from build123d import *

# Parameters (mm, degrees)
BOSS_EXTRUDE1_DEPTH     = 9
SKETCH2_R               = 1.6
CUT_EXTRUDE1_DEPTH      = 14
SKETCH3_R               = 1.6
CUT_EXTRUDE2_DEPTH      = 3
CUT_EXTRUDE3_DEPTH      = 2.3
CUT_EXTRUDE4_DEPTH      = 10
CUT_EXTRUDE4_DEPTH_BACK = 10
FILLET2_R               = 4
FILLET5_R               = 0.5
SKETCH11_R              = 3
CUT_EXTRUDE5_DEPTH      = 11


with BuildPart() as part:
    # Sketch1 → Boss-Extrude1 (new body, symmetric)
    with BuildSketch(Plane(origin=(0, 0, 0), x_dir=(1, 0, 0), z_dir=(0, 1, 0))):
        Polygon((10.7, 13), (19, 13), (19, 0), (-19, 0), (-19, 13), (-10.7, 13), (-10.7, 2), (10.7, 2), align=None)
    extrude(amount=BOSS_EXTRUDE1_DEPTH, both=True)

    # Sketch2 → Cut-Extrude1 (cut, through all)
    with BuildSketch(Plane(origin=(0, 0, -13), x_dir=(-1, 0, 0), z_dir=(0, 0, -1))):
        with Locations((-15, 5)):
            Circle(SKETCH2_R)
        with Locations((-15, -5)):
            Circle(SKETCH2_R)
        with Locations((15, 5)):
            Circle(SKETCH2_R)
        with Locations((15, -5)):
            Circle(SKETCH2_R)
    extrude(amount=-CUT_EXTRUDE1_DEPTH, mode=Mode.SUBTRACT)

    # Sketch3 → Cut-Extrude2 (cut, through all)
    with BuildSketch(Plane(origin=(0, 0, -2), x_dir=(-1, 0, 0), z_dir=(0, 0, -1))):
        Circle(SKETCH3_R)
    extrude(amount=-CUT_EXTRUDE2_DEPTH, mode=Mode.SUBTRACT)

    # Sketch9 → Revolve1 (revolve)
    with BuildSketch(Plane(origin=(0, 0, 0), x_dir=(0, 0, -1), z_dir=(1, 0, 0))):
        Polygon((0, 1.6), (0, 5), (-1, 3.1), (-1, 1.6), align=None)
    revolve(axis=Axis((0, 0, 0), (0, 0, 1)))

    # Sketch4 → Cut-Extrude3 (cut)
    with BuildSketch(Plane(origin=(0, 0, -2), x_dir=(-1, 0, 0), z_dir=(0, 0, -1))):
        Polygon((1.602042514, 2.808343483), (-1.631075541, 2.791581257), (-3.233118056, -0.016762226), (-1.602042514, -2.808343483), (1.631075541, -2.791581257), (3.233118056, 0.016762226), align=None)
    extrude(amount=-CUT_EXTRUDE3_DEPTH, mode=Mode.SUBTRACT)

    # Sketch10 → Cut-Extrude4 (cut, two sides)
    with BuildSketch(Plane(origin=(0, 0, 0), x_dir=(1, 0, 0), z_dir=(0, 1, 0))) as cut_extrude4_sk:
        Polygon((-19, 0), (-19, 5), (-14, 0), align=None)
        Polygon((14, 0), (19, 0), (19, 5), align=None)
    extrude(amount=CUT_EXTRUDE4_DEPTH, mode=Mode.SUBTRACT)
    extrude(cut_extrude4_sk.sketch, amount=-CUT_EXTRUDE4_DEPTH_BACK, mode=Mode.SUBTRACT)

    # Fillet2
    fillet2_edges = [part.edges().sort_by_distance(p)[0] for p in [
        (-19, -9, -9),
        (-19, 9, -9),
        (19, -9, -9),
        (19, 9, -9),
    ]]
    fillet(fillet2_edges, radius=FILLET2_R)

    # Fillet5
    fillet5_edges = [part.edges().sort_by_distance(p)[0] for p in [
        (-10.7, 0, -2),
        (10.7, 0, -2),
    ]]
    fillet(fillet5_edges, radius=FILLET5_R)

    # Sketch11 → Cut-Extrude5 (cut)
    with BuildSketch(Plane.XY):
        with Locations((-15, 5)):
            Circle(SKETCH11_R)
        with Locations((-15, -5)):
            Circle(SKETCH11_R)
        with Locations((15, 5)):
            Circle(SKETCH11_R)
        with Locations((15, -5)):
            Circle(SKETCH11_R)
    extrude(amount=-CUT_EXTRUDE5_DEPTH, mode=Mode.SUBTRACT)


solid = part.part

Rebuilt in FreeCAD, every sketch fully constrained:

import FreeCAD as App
import Part
import Sketcher

V = App.Vector


def edges_at(feature, points):
    """Names of the edges that pass closest to the given points."""
    edges = feature.Shape.Edges
    near = lambda p: min(range(len(edges)), key=lambda i: edges[i].distToShape(Part.Vertex(*p))[0])
    return sorted({f"Edge{near(p) + 1}" for p in points})

doc = App.newDocument("Part")
body = doc.addObject("PartDesign::Body", "Body")

# Sketch on XZ plane
sketch1 = body.newObject("Sketcher::SketchObject", "Sketch")
sketch1.AttachmentSupport = (doc.getObject("XZ_Plane"), [""])
sketch1.MapMode = "FlatFace"
sketch1.addGeometry([
    Part.LineSegment(V(19, -13, 0), V(10.7, -13, 0)),  # 0
    Part.LineSegment(V(10.7, -13, 0), V(10.7, -2, 0)),  # 1
    Part.LineSegment(V(10.7, -2, 0), V(-10.7, -2, 0)),  # 2
    Part.LineSegment(V(-10.7, -2, 0), V(-10.7, -13, 0)),  # 3
    Part.LineSegment(V(-10.7, -13, 0), V(-19, -13, 0)),  # 4
    Part.LineSegment(V(-19, -13, 0), V(-19, 0, 0)),  # 5
    Part.LineSegment(V(-19, 0, 0), V(19, 0, 0)),  # 6
    Part.LineSegment(V(19, 0, 0), V(19, -13, 0)),  # 7
], False)
sketch1.addConstraint([
    Sketcher.Constraint("Coincident", 0, 2, 1, 1),
    Sketcher.Constraint("Coincident", 1, 2, 2, 1),
    Sketcher.Constraint("Coincident", 2, 2, 3, 1),
    Sketcher.Constraint("Coincident", 3, 2, 4, 1),
    Sketcher.Constraint("Coincident", 4, 2, 5, 1),
    Sketcher.Constraint("Coincident", 5, 2, 6, 1),
    Sketcher.Constraint("Coincident", 6, 2, 7, 1),
    Sketcher.Constraint("Coincident", 7, 2, 0, 1),
    Sketcher.Constraint("Horizontal", 0),
    Sketcher.Constraint("Vertical", 1),
    Sketcher.Constraint("Horizontal", 2),
    Sketcher.Constraint("Vertical", 3),
    Sketcher.Constraint("Horizontal", 4),
    Sketcher.Constraint("Vertical", 5),
    Sketcher.Constraint("Horizontal", 6),
    Sketcher.Constraint("Vertical", 7),
    Sketcher.Constraint("Symmetric", 5, 2, 6, 2, -1, 1),
    Sketcher.Constraint("Symmetric", 0, 2, 3, 2, -2),
    Sketcher.Constraint("DistanceX", 6, 1, 6, 2, 38.0),
    Sketcher.Constraint("DistanceY", 1, 1, 1, 2, 11.0),
    Sketcher.Constraint("DistanceY", 5, 1, 5, 2, 13.0),
    Sketcher.Constraint("DistanceX", 0, 2, 0, 1, 8.3),
])
pad1 = body.newObject("PartDesign::Pad", "Pad")
pad1.Profile = sketch1
pad1.Length = 18
pad1.Midplane = True

# Sketch on XY plane
sketch2 = body.newObject("Sketcher::SketchObject", "Sketch001")
sketch2.AttachmentSupport = (doc.getObject("XY_Plane"), [""])
sketch2.MapMode = "FlatFace"
sketch2.AttachmentOffset = App.Placement(V(0, 0, -13), App.Rotation())
sketch2.addGeometry([
    Part.Circle(V(15, 5, 0), V(0, 0, 1), 1.6),
    Part.Circle(V(15, -5, 0), V(0, 0, 1), 1.6),
    Part.Circle(V(-15, 5, 0), V(0, 0, 1), 1.6),
    Part.Circle(V(-15, -5, 0), V(0, 0, 1), 1.6),
], False)
sketch2.addConstraint([
    Sketcher.Constraint("Equal", 0, 1),
    Sketcher.Constraint("Equal", 1, 2),
    Sketcher.Constraint("Equal", 2, 3),
    Sketcher.Constraint("Symmetric", 1, 3, 2, 3, -1, 1),
    Sketcher.Constraint("Symmetric", 0, 3, 3, 3, -1, 1),
    Sketcher.Constraint("Symmetric", 0, 3, 2, 3, -2),
    Sketcher.Constraint("Diameter", 0, 3.2),
    Sketcher.Constraint("DistanceX", -1, 1, 0, 3, 15.0),
    Sketcher.Constraint("DistanceY", -1, 1, 0, 3, 5.0),
])
pocket1 = body.newObject("PartDesign::Pocket", "Pocket")
pocket1.Profile = sketch2
pocket1.Type = "ThroughAll"
pocket1.Reversed = True

# Sketch on XY plane
sketch3 = body.newObject("Sketcher::SketchObject", "Sketch002")
sketch3.AttachmentSupport = (doc.getObject("XY_Plane"), [""])
sketch3.MapMode = "FlatFace"
sketch3.AttachmentOffset = App.Placement(V(0, 0, -2), App.Rotation())
sketch3.addGeometry(Part.Circle(V(0, 0, 0), V(0, 0, 1), 1.6), False)
sketch3.addConstraint([
    Sketcher.Constraint("Coincident", 0, 3, -1, 1),
    Sketcher.Constraint("Diameter", 0, 3.2),
])
pocket2 = body.newObject("PartDesign::Pocket", "Pocket001")
pocket2.Profile = sketch3
pocket2.Type = "ThroughAll"
pocket2.Reversed = True

# Sketch on YZ plane
sketch4 = body.newObject("Sketcher::SketchObject", "Sketch003")
sketch4.AttachmentSupport = (doc.getObject("YZ_Plane"), [""])
sketch4.MapMode = "FlatFace"
sketch4.addGeometry([
    Part.LineSegment(V(1.6, 0, 0), V(5, 0, 0)),
    Part.LineSegment(V(5, 0, 0), V(3.1, 1, 0)),
    Part.LineSegment(V(3.1, 1, 0), V(1.6, 1, 0)),
    Part.LineSegment(V(1.6, 1, 0), V(1.6, 0, 0)),
], False)
sketch4.addConstraint([
    Sketcher.Constraint("Coincident", 0, 2, 1, 1),
    Sketcher.Constraint("Coincident", 1, 2, 2, 1),
    Sketcher.Constraint("Coincident", 2, 2, 3, 1),
    Sketcher.Constraint("Coincident", 3, 2, 0, 1),
    Sketcher.Constraint("Horizontal", 0),
    Sketcher.Constraint("Horizontal", 2),
    Sketcher.Constraint("Vertical", 3),
    Sketcher.Constraint("PointOnObject", 0, 2, -1),
    Sketcher.Constraint("DistanceY", 3, 2, 3, 1, 1.0),
    Sketcher.Constraint("DistanceX", 0, 1, 0, 2, 3.4),
    Sketcher.Constraint("DistanceX", 2, 2, 2, 1, 1.5),
    Sketcher.Constraint("DistanceX", -1, 1, 0, 2, 5.0),
])
revolution = body.newObject("PartDesign::Revolution", "Revolution")
revolution.Profile = sketch4
revolution.ReferenceAxis = (sketch4, ["V_Axis"])
revolution.Angle = 360

# Sketch on XY plane
sketch5 = body.newObject("Sketcher::SketchObject", "Sketch004")
sketch5.AttachmentSupport = (doc.getObject("XY_Plane"), [""])
sketch5.MapMode = "FlatFace"
sketch5.AttachmentOffset = App.Placement(V(0, 0, -2), App.Rotation())
sketch5.addGeometry([
    Part.LineSegment(V(-1.602043, 2.808343, 0), V(1.631076, 2.791581, 0)),  # 0
    Part.LineSegment(V(1.631076, 2.791581, 0), V(3.233118, -0.016762, 0)),  # 1
    Part.LineSegment(V(3.233118, -0.016762, 0), V(1.602043, -2.808343, 0)),  # 2
    Part.LineSegment(V(1.602043, -2.808343, 0), V(-1.631076, -2.791581, 0)),  # 3
    Part.LineSegment(V(-1.631076, -2.791581, 0), V(-3.233118, 0.016762, 0)),  # 4
    Part.LineSegment(V(-3.233118, 0.016762, 0), V(-1.602043, 2.808343, 0)),  # 5
], False)
sketch5.addConstraint([
    Sketcher.Constraint("Coincident", 0, 2, 1, 1),
    Sketcher.Constraint("Coincident", 1, 2, 2, 1),
    Sketcher.Constraint("Coincident", 2, 2, 3, 1),
    Sketcher.Constraint("Coincident", 3, 2, 4, 1),
    Sketcher.Constraint("Coincident", 4, 2, 5, 1),
    Sketcher.Constraint("Coincident", 5, 2, 0, 1),
    Sketcher.Constraint("Symmetric", 0, 2, 3, 2, -1, 1),
    Sketcher.Constraint("Symmetric", 1, 2, 4, 2, -1, 1),
    Sketcher.Constraint("Symmetric", 2, 2, 5, 2, -1, 1),
    Sketcher.Constraint("Equal", 0, 1),
    Sketcher.Constraint("Equal", 1, 2),
    Sketcher.Constraint("Distance", 0, 3.233162),
    Sketcher.Constraint("DistanceY", -1, 1, 0, 2, 2.791581),
    Sketcher.Constraint("DistanceX", -1, 1, 1, 2, 3.233118),
    Sketcher.Constraint("DistanceY", 2, 2, 1, 2, 2.791581),
])
pocket3 = body.newObject("PartDesign::Pocket", "Pocket002")
pocket3.Profile = sketch5
pocket3.Length = 2.3
pocket3.Reversed = True

# Sketch on XZ plane
sketch6 = body.newObject("Sketcher::SketchObject", "Sketch005")
sketch6.AttachmentSupport = (doc.getObject("XZ_Plane"), [""])
sketch6.MapMode = "FlatFace"
sketch6.addGeometry([
    Part.LineSegment(V(-19, -5, 0), V(-19, 0, 0)),  # 0
    Part.LineSegment(V(-19, 0, 0), V(-14, 0, 0)),  # 1
    Part.LineSegment(V(-14, 0, 0), V(-19, -5, 0)),  # 2
    Part.LineSegment(V(14, 0, 0), V(19, 0, 0)),  # 3
    Part.LineSegment(V(19, 0, 0), V(19, -5, 0)),  # 4
    Part.LineSegment(V(19, -5, 0), V(14, 0, 0)),  # 5
], False)
sketch6.addConstraint([
    Sketcher.Constraint("Coincident", 0, 2, 1, 1),
    Sketcher.Constraint("Coincident", 1, 2, 2, 1),
    Sketcher.Constraint("Coincident", 2, 2, 0, 1),
    Sketcher.Constraint("Coincident", 3, 2, 4, 1),
    Sketcher.Constraint("Coincident", 4, 2, 5, 1),
    Sketcher.Constraint("Coincident", 5, 2, 3, 1),
    Sketcher.Constraint("Vertical", 0),
    Sketcher.Constraint("Horizontal", 1),
    Sketcher.Constraint("Horizontal", 3),
    Sketcher.Constraint("Vertical", 4),
    Sketcher.Constraint("Symmetric", 0, 2, 3, 2, -1, 1),
    Sketcher.Constraint("Symmetric", 1, 2, 5, 2, -2),
    Sketcher.Constraint("Perpendicular", 2, 5),
    Sketcher.Constraint("Horizontal", 2, 2, 4, 2),
    Sketcher.Constraint("DistanceX", 1, 1, 1, 2, 5.0),
    Sketcher.Constraint("DistanceX", 0, 2, -1, 1, 19.0),
])
pocket4 = body.newObject("PartDesign::Pocket", "Pocket003")
pocket4.Profile = sketch6
pocket4.Type = "ThroughAll"
pocket4.Midplane = True
doc.recompute()

fillet = body.newObject("PartDesign::Fillet", "Fillet")
fillet.Base = (pocket4, edges_at(pocket4, [
    (-19, -9, -9),
    (-19, 9, -9),
    (19, -9, -9),
    (19, 9, -9),
]))
fillet.Radius = 4
doc.recompute()

fillet2 = body.newObject("PartDesign::Fillet", "Fillet001")
fillet2.Base = (fillet, edges_at(fillet, [(-10.7, 0, -2), (10.7, 0, -2)]))
fillet2.Radius = 0.5

# Sketch on XY plane
sketch7 = body.newObject("Sketcher::SketchObject", "Sketch006")
sketch7.AttachmentSupport = (doc.getObject("XY_Plane"), [""])
sketch7.MapMode = "FlatFace"
sketch7.addGeometry([
    Part.Circle(V(-15, 5, 0), V(0, 0, 1), 3),
    Part.Circle(V(-15, -5, 0), V(0, 0, 1), 3),
    Part.Circle(V(15, 5, 0), V(0, 0, 1), 3),
    Part.Circle(V(15, -5, 0), V(0, 0, 1), 3),
], False)
sketch7.addConstraint([
    Sketcher.Constraint("Equal", 0, 1),
    Sketcher.Constraint("Equal", 1, 2),
    Sketcher.Constraint("Equal", 2, 3),
    Sketcher.Constraint("Symmetric", 1, 3, 2, 3, -1, 1),
    Sketcher.Constraint("Symmetric", 0, 3, 3, 3, -1, 1),
    Sketcher.Constraint("Symmetric", 0, 3, 2, 3, -2),
    Sketcher.Constraint("Diameter", 0, 6.0),
    Sketcher.Constraint("DistanceX", 0, 3, -1, 1, 15.0),
    Sketcher.Constraint("DistanceY", -1, 1, 0, 3, 5.0),
])
pocket5 = body.newObject("PartDesign::Pocket", "Pocket004")
pocket5.Profile = sketch7
pocket5.Length = 11

doc.recompute()
